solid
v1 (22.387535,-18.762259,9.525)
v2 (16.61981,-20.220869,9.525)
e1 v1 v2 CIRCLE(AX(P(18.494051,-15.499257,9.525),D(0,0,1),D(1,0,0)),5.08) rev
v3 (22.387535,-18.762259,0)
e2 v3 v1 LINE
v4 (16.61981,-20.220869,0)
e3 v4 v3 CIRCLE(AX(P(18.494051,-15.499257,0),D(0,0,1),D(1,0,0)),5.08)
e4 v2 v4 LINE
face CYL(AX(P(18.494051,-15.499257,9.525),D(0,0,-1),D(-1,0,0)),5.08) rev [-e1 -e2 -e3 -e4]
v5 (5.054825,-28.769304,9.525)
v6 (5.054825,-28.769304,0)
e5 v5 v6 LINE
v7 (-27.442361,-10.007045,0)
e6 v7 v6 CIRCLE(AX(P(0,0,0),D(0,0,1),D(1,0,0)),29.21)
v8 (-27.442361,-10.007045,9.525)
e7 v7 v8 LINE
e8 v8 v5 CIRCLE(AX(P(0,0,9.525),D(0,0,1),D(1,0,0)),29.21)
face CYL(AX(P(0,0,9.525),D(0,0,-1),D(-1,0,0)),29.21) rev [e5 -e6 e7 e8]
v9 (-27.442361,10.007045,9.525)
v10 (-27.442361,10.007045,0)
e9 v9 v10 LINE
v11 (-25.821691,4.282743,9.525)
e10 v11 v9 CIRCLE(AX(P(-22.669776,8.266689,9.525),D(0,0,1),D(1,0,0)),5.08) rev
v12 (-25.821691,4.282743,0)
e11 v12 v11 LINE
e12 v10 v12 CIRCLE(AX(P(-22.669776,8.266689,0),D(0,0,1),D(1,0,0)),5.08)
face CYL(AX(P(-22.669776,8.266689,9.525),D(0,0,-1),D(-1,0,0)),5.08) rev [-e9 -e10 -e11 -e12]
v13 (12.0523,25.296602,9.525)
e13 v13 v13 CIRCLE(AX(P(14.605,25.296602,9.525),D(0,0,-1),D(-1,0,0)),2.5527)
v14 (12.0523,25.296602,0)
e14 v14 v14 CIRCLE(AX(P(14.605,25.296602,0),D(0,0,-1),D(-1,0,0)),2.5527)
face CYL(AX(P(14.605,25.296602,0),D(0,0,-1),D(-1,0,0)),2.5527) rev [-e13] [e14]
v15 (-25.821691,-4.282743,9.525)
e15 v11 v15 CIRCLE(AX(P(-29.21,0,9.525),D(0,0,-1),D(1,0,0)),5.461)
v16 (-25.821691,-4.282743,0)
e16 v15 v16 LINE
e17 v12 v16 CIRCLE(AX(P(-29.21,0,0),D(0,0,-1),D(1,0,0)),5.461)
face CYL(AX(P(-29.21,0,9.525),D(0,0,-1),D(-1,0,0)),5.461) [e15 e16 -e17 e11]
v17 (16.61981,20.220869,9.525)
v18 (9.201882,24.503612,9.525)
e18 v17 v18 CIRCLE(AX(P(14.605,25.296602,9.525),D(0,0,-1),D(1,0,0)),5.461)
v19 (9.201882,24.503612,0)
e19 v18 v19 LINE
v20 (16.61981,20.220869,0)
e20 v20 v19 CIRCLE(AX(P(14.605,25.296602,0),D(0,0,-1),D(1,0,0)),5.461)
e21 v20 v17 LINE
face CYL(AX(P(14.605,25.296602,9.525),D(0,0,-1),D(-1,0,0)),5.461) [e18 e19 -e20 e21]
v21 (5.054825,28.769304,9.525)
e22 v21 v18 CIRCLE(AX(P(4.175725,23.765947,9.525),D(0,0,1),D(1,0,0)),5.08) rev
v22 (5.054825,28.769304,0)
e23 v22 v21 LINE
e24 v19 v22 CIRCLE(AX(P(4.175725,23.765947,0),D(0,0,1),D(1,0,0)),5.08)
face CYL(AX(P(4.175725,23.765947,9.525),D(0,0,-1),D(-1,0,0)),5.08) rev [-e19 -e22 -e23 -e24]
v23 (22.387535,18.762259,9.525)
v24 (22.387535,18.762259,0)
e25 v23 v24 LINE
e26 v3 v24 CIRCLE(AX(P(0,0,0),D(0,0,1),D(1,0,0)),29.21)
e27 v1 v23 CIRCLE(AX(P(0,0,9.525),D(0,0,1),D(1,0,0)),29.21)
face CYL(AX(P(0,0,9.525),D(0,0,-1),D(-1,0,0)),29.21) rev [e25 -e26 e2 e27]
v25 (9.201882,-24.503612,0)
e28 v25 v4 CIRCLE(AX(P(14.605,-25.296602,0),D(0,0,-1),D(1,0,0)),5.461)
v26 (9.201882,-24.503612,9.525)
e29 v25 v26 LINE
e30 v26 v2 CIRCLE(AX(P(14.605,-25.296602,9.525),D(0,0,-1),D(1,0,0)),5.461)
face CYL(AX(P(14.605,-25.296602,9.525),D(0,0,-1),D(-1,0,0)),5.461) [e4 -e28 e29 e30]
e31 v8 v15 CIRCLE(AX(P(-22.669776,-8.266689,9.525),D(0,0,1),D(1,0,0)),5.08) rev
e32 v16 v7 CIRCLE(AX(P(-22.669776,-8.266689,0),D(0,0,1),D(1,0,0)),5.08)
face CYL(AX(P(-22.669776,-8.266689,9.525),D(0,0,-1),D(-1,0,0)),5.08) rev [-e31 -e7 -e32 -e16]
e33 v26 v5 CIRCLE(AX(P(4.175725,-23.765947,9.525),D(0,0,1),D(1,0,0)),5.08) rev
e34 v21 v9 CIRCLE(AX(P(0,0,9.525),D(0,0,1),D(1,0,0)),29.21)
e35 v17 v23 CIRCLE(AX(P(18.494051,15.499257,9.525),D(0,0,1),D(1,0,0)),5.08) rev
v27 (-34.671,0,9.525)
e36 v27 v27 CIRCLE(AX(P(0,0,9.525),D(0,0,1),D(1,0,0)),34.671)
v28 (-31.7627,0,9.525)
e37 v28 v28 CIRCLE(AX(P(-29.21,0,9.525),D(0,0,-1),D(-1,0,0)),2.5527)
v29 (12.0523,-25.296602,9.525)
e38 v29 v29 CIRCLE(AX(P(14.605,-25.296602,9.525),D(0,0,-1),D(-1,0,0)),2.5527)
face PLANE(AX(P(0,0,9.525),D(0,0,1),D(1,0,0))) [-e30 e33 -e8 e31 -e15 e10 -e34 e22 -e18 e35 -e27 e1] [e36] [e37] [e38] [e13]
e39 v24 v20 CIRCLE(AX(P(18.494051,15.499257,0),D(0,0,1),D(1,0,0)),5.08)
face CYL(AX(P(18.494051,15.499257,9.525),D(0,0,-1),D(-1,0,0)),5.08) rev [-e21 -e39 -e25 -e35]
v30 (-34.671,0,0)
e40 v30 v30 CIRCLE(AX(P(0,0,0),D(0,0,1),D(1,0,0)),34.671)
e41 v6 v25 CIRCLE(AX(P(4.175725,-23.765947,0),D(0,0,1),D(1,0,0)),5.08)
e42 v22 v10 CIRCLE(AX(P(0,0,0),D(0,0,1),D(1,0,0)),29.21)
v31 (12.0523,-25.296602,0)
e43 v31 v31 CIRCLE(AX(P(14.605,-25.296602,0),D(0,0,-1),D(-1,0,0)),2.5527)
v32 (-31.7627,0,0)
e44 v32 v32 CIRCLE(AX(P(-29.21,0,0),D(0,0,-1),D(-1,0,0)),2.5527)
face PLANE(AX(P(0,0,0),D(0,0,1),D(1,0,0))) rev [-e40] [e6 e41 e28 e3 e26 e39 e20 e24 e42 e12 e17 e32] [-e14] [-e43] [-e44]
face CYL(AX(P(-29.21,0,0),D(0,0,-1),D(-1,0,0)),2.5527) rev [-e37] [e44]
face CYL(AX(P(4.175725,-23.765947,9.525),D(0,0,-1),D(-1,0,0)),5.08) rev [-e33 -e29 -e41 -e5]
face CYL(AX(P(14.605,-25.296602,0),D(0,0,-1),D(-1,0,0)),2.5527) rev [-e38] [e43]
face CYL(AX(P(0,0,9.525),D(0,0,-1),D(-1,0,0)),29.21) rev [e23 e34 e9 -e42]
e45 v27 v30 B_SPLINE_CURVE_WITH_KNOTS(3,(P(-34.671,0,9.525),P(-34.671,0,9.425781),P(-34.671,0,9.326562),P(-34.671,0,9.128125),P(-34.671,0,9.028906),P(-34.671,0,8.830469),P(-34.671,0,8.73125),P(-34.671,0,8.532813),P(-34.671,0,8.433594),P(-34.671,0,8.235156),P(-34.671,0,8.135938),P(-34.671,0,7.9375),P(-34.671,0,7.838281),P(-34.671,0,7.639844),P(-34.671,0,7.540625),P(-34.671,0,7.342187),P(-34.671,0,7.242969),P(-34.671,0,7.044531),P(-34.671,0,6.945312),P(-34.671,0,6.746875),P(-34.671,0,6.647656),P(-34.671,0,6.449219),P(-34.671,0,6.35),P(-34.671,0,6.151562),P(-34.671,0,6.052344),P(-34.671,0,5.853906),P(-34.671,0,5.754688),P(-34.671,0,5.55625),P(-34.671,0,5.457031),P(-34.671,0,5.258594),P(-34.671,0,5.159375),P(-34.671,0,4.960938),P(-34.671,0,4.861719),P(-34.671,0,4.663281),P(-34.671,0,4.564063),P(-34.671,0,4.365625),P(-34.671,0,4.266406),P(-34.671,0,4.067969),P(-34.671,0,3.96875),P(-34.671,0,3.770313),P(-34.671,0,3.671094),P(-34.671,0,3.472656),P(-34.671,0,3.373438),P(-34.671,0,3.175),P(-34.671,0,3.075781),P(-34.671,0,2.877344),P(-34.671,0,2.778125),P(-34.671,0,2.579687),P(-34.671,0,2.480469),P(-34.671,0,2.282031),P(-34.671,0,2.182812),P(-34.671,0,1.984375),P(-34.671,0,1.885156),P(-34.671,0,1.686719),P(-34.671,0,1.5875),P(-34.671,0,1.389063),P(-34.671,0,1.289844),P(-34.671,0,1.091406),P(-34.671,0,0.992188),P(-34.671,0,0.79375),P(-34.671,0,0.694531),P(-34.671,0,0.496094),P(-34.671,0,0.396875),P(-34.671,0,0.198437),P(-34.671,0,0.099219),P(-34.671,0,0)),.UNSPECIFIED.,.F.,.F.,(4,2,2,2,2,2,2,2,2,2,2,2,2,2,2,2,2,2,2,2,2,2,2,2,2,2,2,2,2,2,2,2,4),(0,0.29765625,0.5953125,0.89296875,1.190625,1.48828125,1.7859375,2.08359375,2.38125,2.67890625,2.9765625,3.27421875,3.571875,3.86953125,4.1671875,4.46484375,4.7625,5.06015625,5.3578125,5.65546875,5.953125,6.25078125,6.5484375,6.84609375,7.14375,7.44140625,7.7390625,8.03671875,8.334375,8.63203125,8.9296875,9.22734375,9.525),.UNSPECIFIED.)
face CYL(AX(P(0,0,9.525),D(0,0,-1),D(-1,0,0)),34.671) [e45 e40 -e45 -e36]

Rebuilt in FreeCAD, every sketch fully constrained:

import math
import FreeCAD as App
import Part
import Sketcher
from FreeCAD import Vector
Q = App.Units.Quantity


def edges_at(feature, points):
    """Names of the edges that pass closest to the given points."""
    edges = feature.Shape.Edges
    near = lambda p: min(range(len(edges)), key=lambda i: edges[i].distToShape(Part.Vertex(*p))[0])
    return sorted({f"Edge{near(p) + 1}" for p in points})

doc = App.newDocument("Part")
params = doc.addObject("Spreadsheet::Sheet", "Params")
for row, (alias, value) in enumerate([
    ("sketch1_diameter", "2.73 in"),
    ("sketch1_radius", "1.15 in"),
    ("sketch1_radius2", "0.215 in"),
    ("pad1_length", "0.375 in"),
    ("fillet_radius", "0.2 in"),
    ("sketch2_diameter", "0.201 in"),
    ("hole_diameter", "0.201 in"),
], start=1):
    params.set(f"A{row}", alias)
    params.set(f"B{row}", "=" + value)
    params.setAlias(f"B{row}", alias)

body = doc.addObject("PartDesign::Body", "Body")

# Sketch on XY plane
sketch1 = body.newObject("Sketcher::SketchObject", "Sketch")
sketch1.AttachmentSupport = (doc.getObject("XY_Plane"), [""])
sketch1.MapMode = "FlatFace"
sketch1.addGeometry(Part.Circle(Vector(0, 0, 0), Vector(0, 0, 1), 35), False)
sketch1.addGeometry(Part.ArcOfCircle(Part.Circle(Vector(0, 0, 0), Vector(0, 0, 1), 29), math.radians(-49), math.radians(49)), False)
sketch1.addGeometry(Part.ArcOfCircle(Part.Circle(Vector(15, -25, 0), Vector(0, 0, 1), 5), math.radians(35), math.radians(205)), False)
sketch1.addGeometry(Part.ArcOfCircle(Part.Circle(Vector(0, 0, 0), Vector(0, 0, 1), 29), math.radians(-169), math.radians(-71)), False)
sketch1.addGeometry(Part.ArcOfCircle(Part.Circle(Vector(-29, 0, 0), Vector(0, 0, 1), 5), math.radians(-85), math.radians(85)), False)
sketch1.addGeometry(Part.ArcOfCircle(Part.Circle(Vector(0, 0, 0), Vector(0, 0, 1), 29), math.radians(71), math.radians(169)), False)
sketch1.addGeometry(Part.ArcOfCircle(Part.Circle(Vector(15, 25, 0), Vector(0, 0, 1), 5), math.radians(155), math.radians(325)), False)
sketch1.addConstraint(Sketcher.Constraint("Coincident", 1, 1, 2, 1))
sketch1.addConstraint(Sketcher.Constraint("Coincident", 2, 2, 3, 2))
sketch1.addConstraint(Sketcher.Constraint("Coincident", 3, 1, 4, 1))
sketch1.addConstraint(Sketcher.Constraint("Coincident", 4, 2, 5, 2))
sketch1.addConstraint(Sketcher.Constraint("Coincident", 5, 1, 6, 1))
sketch1.addConstraint(Sketcher.Constraint("Coincident", 6, 2, 1, 2))
sketch1.addConstraint(Sketcher.Constraint("Coincident", 0, 3, -1, 1))
sketch1.addConstraint(Sketcher.Constraint("Coincident", 1, 3, -1, 1))
sketch1.addConstraint(Sketcher.Constraint("Coincident", 3, 3, -1, 1))
sketch1.addConstraint(Sketcher.Constraint("Coincident", 5, 3, -1, 1))
sketch1.addConstraint(Sketcher.Constraint("Equal", 1, 3))
sketch1.addConstraint(Sketcher.Constraint("Equal", 2, 4))
sketch1.addConstraint(Sketcher.Constraint("Equal", 3, 5))
sketch1.addConstraint(Sketcher.Constraint("Equal", 4, 6))
sketch1.addConstraint(Sketcher.Constraint("Symmetric", 2, 3, 6, 3, -1))
sketch1.addConstraint(Sketcher.Constraint("PointOnObject", 4, 3, -1))
sketch1.addConstraint(Sketcher.Constraint("Diameter", 0, Q("2.73 in")))
sketch1.addConstraint(Sketcher.Constraint("Radius", 1, Q("1.15 in")))
sketch1.addConstraint(Sketcher.Constraint("Radius", 2, Q("0.215 in")))
sketch1.addConstraint(Sketcher.Constraint("DistanceX", 4, 3, -1, 1, Q("1.15 in")))
sketch1.addConstraint(Sketcher.Constraint("DistanceX", -1, 1, 2, 3, Q("0.575 in")))
sketch1.addConstraint(Sketcher.Constraint("DistanceX", -1, 1, 2, 2, Q("9.641101 mm")))
sketch1.setExpression("Constraints[16]", "Params.sketch1_diameter")
sketch1.setExpression("Constraints[17]", "Params.sketch1_radius")
sketch1.setExpression("Constraints[18]", "Params.sketch1_radius2")
pad1 = body.newObject("PartDesign::Pad", "Pad")
pad1.Profile = sketch1
pad1.setExpression("Length", "Params.pad1_length")
doc.recompute()

fillet = body.newObject("PartDesign::Fillet", "Fillet")
fillet.Base = (pad1, edges_at(pad1, [
    (-28.7, 5.437, 4.763),
    (-28.7, -5.437, 4.763),
    (9.641, -27.573, 4.763),
    (19.058, -22.136, 4.763),
    (19.058, 22.136, 4.763),
    (9.641, 27.573, 4.763),
]))
fillet.setExpression("Radius", "Params.fillet_radius")

# Sketch on XY plane
sketch2 = body.newObject("Sketcher::SketchObject", "Sketch001")
sketch2.AttachmentSupport = (doc.getObject("XY_Plane"), [""])
sketch2.MapMode = "FlatFace"
sketch2.addGeometry(Part.Circle(Vector(14.6, 25.3, 0), Vector(0, 0, 1), 2.6), False)
sketch2.addGeometry(Part.Circle(Vector(-29.2, 0, 0), Vector(0, 0, 1), 2.6), False)
sketch2.addGeometry(Part.Circle(Vector(14.6, -25.3, 0), Vector(0, 0, 1), 2.6), False)
sketch2.addConstraint(Sketcher.Constraint("Equal", 0, 1))
sketch2.addConstraint(Sketcher.Constraint("Equal", 1, 2))
sketch2.addConstraint(Sketcher.Constraint("Symmetric", 0, 3, 2, 3, -1))
sketch2.addConstraint(Sketcher.Constraint("PointOnObject", 1, 3, -1))
sketch2.addConstraint(Sketcher.Constraint("Diameter", 0, Q("0.201 in")))
sketch2.addConstraint(Sketcher.Constraint("DistanceX", 1, 3, -1, 1, Q("1.15 in")))
sketch2.addConstraint(Sketcher.Constraint("DistanceX", -1, 1, 0, 3, Q("0.575 in")))
sketch2.addConstraint(Sketcher.Constraint("DistanceY", -1, 1, 0, 3, Q("25.296602 mm")))
sketch2.setExpression("Constraints[4]", "Params.sketch2_diameter")
doc.recompute()
hole = body.newObject("PartDesign::Hole", "Hole")
hole.Profile = sketch2
hole.ThreadType = "None"
hole.setExpression("Diameter", "Params.hole_diameter")
hole.DepthType = "ThroughAll"
hole.Reversed = True

doc.recompute()
